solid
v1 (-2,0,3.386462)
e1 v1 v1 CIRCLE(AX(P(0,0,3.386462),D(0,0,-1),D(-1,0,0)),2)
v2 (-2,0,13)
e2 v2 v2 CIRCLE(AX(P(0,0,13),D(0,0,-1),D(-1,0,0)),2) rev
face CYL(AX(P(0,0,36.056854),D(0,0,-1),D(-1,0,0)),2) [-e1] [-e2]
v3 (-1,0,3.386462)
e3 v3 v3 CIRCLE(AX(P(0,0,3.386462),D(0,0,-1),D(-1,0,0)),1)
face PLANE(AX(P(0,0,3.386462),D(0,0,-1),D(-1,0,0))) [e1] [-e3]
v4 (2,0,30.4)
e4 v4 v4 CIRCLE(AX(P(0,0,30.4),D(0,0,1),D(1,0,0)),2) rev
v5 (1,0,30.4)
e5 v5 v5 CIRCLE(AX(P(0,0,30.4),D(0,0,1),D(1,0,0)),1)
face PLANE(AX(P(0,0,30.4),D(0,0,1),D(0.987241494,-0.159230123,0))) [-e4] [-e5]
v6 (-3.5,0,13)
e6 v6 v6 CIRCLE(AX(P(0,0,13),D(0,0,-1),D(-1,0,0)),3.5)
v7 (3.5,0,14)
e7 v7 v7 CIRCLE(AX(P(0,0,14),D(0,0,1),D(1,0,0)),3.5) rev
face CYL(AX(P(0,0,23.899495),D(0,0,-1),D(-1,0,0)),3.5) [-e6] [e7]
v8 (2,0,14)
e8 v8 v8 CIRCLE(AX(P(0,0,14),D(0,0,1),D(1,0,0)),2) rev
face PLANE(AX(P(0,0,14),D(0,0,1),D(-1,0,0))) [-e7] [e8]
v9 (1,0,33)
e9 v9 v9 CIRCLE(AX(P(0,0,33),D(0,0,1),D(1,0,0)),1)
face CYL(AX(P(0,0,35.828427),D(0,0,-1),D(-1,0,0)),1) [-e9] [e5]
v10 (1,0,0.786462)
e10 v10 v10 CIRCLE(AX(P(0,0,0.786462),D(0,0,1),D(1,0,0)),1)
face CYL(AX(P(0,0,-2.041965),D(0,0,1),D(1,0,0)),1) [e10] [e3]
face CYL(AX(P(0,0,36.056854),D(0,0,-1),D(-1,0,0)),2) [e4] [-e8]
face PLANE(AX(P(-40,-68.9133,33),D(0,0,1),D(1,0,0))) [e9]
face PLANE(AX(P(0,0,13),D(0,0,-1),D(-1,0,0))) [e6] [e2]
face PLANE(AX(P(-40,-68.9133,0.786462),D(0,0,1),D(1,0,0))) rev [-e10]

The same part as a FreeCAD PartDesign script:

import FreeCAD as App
import Part
import Sketcher

V = App.Vector

doc = App.newDocument("Part")
body = doc.addObject("PartDesign::Body", "Body")

# Sketch on XY plane
sketch1 = body.newObject("Sketcher::SketchObject", "Sketch")
sketch1.AttachmentSupport = (doc.getObject("XY_Plane"), [""])
sketch1.MapMode = "FlatFace"
sketch1.AttachmentOffset = App.Placement(V(0, 0, 3.386462), App.Rotation())
sketch1.addGeometry(Part.Circle(V(0, 0, 0), V(0, 0, 1), 2), False)
sketch1.addConstraint(Sketcher.Constraint("Coincident", 0, 3, -1, 1))
sketch1.addConstraint(Sketcher.Constraint("Diameter", 0, 4.0))
pad1 = body.newObject("PartDesign::Pad", "Pad")
pad1.Profile = sketch1
pad1.Length = 27.013538

# Sketch on XY plane
sketch2 = body.newObject("Sketcher::SketchObject", "Sketch001")
sketch2.AttachmentSupport = (doc.getObject("XY_Plane"), [""])
sketch2.MapMode = "FlatFace"
sketch2.AttachmentOffset = App.Placement(V(0, 0, 30.4), App.Rotation())
sketch2.addGeometry(Part.Circle(V(0, 0, 0), V(0, 0, 1), 1), False)
sketch2.addConstraint(Sketcher.Constraint("Coincident", 0, 3, -1, 1))
sketch2.addConstraint(Sketcher.Constraint("Diameter", 0, 2.0))
pad2 = body.newObject("PartDesign::Pad", "Pad001")
pad2.Profile = sketch2
pad2.Length = 2.6

# Sketch on XY plane
sketch3 = body.newObject("Sketcher::SketchObject", "Sketch002")
sketch3.AttachmentSupport = (doc.getObject("XY_Plane"), [""])
sketch3.MapMode = "FlatFace"
sketch3.AttachmentOffset = App.Placement(V(0, 0, 3.386462), App.Rotation())
sketch3.addGeometry(Part.Circle(V(0, 0, 0), V(0, 0, 1), 1), False)
sketch3.addConstraint(Sketcher.Constraint("Coincident", 0, 3, -1, 1))
sketch3.addConstraint(Sketcher.Constraint("Diameter", 0, 2.0))
pad3 = body.newObject("PartDesign::Pad", "Pad002")
pad3.Profile = sketch3
pad3.Length = 2.6
pad3.Reversed = True

# Sketch on XY plane
sketch4 = body.newObject("Sketcher::SketchObject", "Sketch003")
sketch4.AttachmentSupport = (doc.getObject("XY_Plane"), [""])
sketch4.MapMode = "FlatFace"
sketch4.AttachmentOffset = App.Placement(V(0, 0, 14), App.Rotation())
sketch4.addGeometry(Part.Circle(V(0, 0, 0), V(0, 0, 1), 3.5), False)
sketch4.addConstraint(Sketcher.Constraint("Coincident", 0, 3, -1, 1))
sketch4.addConstraint(Sketcher.Constraint("Diameter", 0, 7.0))
pad4 = body.newObject("PartDesign::Pad", "Pad003")
pad4.Profile = sketch4
pad4.Length = 1
pad4.Reversed = True

doc.recompute()
